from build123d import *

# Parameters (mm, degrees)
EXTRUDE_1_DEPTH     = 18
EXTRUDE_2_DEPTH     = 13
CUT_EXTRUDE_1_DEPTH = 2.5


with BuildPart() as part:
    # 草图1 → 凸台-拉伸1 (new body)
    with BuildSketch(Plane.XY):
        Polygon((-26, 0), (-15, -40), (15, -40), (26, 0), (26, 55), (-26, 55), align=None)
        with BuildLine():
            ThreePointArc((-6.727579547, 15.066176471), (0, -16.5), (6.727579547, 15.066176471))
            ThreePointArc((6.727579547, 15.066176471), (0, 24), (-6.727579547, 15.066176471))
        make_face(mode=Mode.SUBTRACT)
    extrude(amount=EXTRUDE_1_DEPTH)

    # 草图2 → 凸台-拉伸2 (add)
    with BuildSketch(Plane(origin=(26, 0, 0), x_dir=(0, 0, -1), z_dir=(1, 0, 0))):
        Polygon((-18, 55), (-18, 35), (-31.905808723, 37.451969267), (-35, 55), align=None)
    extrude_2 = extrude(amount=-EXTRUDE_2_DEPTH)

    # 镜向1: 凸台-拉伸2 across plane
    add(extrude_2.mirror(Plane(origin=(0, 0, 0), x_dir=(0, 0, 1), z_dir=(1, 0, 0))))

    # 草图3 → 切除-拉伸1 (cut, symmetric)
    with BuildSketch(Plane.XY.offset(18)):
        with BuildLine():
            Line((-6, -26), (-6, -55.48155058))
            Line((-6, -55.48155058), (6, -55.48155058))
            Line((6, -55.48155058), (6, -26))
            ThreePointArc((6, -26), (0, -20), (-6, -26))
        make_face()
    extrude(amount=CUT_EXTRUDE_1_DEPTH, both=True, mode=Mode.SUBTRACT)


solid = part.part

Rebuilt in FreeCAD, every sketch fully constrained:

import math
import FreeCAD as App
import Part
import Sketcher
from FreeCAD import Vector
Q = App.Units.Quantity


def add_polygon(sketch, points):
    """Adds a closed chain of lines whose ends are joined by coincident constraints."""
    first, n = sketch.GeometryCount, len(points)
    for a, b in zip(points, points[1:] + points[:1]):
        sketch.addGeometry(Part.LineSegment(App.Vector(*a, 0), App.Vector(*b, 0)), False)
    for i in range(n):
        sketch.addConstraint(Sketcher.Constraint("Coincident", first + i, 2, first + (i + 1) % n, 1))

doc = App.newDocument("Part")
body = doc.addObject("PartDesign::Body", "Body")

sketch1 = body.newObject("Sketcher::SketchObject", "Sketch")
sketch1.AttachmentSupport = (doc.getObject("XY_Plane"), [""])
sketch1.MapMode = "FlatFace"
add_polygon(sketch1, [(-26, 0), (-15, -40), (15, -40), (26, 0), (26, 55), (-26, 55)])
sketch1.addGeometry(Part.ArcOfCircle(Part.Circle(Vector(0, 0, 0), Vector(0, 0, 1), 16), math.radians(114), math.radians(426)), False)
sketch1.addGeometry(Part.ArcOfCircle(Part.Circle(Vector(0, 17, 0), Vector(0, 0, 1), 7), math.radians(-16), math.radians(196)), False)
sketch1.addConstraint([
    Sketcher.Constraint("Coincident", 6, 1, 7, 2),
    Sketcher.Constraint("Coincident", 7, 1, 6, 2),
    Sketcher.Constraint("Horizontal", 1),
    Sketcher.Constraint("Vertical", 3),
    Sketcher.Constraint("Horizontal", 4),
    Sketcher.Constraint("Vertical", 5),
    Sketcher.Constraint("Coincident", 6, 3, -1, 1),
    Sketcher.Constraint("Symmetric", 2, 2, 5, 2, -1, 1),
    Sketcher.Constraint("PointOnObject", 7, 3, -2),
    Sketcher.Constraint("PointOnObject", 2, 2, -1),
    Sketcher.Constraint("Equal", 0, 2),
    Sketcher.Constraint("Radius", 7, 7.0),
    Sketcher.Constraint("Radius", 6, 16.5),
    Sketcher.Constraint("DistanceX", 1, 1, 1, 2, 30.0),
    Sketcher.Constraint("DistanceX", 4, 2, 4, 1, 52.0),
    Sketcher.Constraint("DistanceY", 3, 1, 3, 2, 55.0),
    Sketcher.Constraint("DistanceY", -1, 1, 7, 3, 17.0),
    Sketcher.Constraint("DistanceY", 0, 2, -1, 1, 40.0),
])
pad1 = body.newObject("PartDesign::Pad", "Pad")
pad1.Profile = sketch1
pad1.Length = 18

sketch2 = body.newObject("Sketcher::SketchObject", "Sketch001")
sketch2.AttachmentSupport = (doc.getObject("YZ_Plane"), [""])
sketch2.MapMode = "FlatFace"
sketch2.AttachmentOffset = App.Placement(Vector(0, 0, 26), App.Rotation())
add_polygon(sketch2, [(35, 18), (55, 18), (55, 35), (37, 32)])
sketch2.addConstraint([
    Sketcher.Constraint("Horizontal", 0),
    Sketcher.Constraint("Vertical", 1),
    Sketcher.Constraint("DistanceX", 0, 1, 0, 2, 20.0),
    Sketcher.Constraint("DistanceY", 1, 1, 1, 2, 17.0),
    Sketcher.Constraint("Angle", 2, Q("-170 deg")),
    Sketcher.Constraint("Angle", 3, Q("-100 deg")),
    Sketcher.Constraint("DistanceX", -1, 1, 0, 2, 55.0),
    Sketcher.Constraint("DistanceY", -1, 1, 0, 2, 18.0),
])
pad2 = body.newObject("PartDesign::Pad", "Pad001")
pad2.Profile = sketch2
pad2.Length = 13
pad2.Reversed = True
doc.recompute()

mirrored = body.newObject("PartDesign::Mirrored", "Mirrored")
mirrored.Originals = [pad2]
mirrored.MirrorPlane = (doc.getObject("YZ_Plane"), [""])
body.Tip = mirrored

sketch3 = body.newObject("Sketcher::SketchObject", "Sketch002")
sketch3.AttachmentSupport = (doc.getObject("XY_Plane"), [""])
sketch3.MapMode = "FlatFace"
sketch3.AttachmentOffset = App.Placement(Vector(0, 0, 18), App.Rotation())
sketch3.addGeometry([
    Part.LineSegment(Vector(-6, -26, 0), Vector(-6, -55, 0)),
    Part.LineSegment(Vector(-6, -55, 0), Vector(6, -55, 0)),
    Part.LineSegment(Vector(6, -55, 0), Vector(6, -26, 0)),
    Part.ArcOfCircle(Part.Circle(Vector(0, -26, 0), Vector(0, 0, 1), 6), math.radians(0), math.radians(180)),
], False)
sketch3.addConstraint([
    Sketcher.Constraint("Coincident", 0, 2, 1, 1),
    Sketcher.Constraint("Coincident", 1, 2, 2, 1),
    Sketcher.Constraint("Tangent", 2, 2, 3, 1),
    Sketcher.Constraint("Tangent", 3, 2, 0, 1),
    Sketcher.Constraint("Vertical", 0),
    Sketcher.Constraint("Horizontal", 1),
    Sketcher.Constraint("Vertical", 2),
    Sketcher.Constraint("PointOnObject", 3, 3, -2),
    Sketcher.Constraint("Radius", 3, 6.0),
    Sketcher.Constraint("DistanceY", 3, 3, -1, 1, 26.0),
    Sketcher.Constraint("DistanceY", 0, 2, 0, 1, 29.481551),
])
pocket1 = body.newObject("PartDesign::Pocket", "Pocket")
pocket1.Profile = sketch3
pocket1.Length = 5
pocket1.Midplane = True

doc.recompute()
